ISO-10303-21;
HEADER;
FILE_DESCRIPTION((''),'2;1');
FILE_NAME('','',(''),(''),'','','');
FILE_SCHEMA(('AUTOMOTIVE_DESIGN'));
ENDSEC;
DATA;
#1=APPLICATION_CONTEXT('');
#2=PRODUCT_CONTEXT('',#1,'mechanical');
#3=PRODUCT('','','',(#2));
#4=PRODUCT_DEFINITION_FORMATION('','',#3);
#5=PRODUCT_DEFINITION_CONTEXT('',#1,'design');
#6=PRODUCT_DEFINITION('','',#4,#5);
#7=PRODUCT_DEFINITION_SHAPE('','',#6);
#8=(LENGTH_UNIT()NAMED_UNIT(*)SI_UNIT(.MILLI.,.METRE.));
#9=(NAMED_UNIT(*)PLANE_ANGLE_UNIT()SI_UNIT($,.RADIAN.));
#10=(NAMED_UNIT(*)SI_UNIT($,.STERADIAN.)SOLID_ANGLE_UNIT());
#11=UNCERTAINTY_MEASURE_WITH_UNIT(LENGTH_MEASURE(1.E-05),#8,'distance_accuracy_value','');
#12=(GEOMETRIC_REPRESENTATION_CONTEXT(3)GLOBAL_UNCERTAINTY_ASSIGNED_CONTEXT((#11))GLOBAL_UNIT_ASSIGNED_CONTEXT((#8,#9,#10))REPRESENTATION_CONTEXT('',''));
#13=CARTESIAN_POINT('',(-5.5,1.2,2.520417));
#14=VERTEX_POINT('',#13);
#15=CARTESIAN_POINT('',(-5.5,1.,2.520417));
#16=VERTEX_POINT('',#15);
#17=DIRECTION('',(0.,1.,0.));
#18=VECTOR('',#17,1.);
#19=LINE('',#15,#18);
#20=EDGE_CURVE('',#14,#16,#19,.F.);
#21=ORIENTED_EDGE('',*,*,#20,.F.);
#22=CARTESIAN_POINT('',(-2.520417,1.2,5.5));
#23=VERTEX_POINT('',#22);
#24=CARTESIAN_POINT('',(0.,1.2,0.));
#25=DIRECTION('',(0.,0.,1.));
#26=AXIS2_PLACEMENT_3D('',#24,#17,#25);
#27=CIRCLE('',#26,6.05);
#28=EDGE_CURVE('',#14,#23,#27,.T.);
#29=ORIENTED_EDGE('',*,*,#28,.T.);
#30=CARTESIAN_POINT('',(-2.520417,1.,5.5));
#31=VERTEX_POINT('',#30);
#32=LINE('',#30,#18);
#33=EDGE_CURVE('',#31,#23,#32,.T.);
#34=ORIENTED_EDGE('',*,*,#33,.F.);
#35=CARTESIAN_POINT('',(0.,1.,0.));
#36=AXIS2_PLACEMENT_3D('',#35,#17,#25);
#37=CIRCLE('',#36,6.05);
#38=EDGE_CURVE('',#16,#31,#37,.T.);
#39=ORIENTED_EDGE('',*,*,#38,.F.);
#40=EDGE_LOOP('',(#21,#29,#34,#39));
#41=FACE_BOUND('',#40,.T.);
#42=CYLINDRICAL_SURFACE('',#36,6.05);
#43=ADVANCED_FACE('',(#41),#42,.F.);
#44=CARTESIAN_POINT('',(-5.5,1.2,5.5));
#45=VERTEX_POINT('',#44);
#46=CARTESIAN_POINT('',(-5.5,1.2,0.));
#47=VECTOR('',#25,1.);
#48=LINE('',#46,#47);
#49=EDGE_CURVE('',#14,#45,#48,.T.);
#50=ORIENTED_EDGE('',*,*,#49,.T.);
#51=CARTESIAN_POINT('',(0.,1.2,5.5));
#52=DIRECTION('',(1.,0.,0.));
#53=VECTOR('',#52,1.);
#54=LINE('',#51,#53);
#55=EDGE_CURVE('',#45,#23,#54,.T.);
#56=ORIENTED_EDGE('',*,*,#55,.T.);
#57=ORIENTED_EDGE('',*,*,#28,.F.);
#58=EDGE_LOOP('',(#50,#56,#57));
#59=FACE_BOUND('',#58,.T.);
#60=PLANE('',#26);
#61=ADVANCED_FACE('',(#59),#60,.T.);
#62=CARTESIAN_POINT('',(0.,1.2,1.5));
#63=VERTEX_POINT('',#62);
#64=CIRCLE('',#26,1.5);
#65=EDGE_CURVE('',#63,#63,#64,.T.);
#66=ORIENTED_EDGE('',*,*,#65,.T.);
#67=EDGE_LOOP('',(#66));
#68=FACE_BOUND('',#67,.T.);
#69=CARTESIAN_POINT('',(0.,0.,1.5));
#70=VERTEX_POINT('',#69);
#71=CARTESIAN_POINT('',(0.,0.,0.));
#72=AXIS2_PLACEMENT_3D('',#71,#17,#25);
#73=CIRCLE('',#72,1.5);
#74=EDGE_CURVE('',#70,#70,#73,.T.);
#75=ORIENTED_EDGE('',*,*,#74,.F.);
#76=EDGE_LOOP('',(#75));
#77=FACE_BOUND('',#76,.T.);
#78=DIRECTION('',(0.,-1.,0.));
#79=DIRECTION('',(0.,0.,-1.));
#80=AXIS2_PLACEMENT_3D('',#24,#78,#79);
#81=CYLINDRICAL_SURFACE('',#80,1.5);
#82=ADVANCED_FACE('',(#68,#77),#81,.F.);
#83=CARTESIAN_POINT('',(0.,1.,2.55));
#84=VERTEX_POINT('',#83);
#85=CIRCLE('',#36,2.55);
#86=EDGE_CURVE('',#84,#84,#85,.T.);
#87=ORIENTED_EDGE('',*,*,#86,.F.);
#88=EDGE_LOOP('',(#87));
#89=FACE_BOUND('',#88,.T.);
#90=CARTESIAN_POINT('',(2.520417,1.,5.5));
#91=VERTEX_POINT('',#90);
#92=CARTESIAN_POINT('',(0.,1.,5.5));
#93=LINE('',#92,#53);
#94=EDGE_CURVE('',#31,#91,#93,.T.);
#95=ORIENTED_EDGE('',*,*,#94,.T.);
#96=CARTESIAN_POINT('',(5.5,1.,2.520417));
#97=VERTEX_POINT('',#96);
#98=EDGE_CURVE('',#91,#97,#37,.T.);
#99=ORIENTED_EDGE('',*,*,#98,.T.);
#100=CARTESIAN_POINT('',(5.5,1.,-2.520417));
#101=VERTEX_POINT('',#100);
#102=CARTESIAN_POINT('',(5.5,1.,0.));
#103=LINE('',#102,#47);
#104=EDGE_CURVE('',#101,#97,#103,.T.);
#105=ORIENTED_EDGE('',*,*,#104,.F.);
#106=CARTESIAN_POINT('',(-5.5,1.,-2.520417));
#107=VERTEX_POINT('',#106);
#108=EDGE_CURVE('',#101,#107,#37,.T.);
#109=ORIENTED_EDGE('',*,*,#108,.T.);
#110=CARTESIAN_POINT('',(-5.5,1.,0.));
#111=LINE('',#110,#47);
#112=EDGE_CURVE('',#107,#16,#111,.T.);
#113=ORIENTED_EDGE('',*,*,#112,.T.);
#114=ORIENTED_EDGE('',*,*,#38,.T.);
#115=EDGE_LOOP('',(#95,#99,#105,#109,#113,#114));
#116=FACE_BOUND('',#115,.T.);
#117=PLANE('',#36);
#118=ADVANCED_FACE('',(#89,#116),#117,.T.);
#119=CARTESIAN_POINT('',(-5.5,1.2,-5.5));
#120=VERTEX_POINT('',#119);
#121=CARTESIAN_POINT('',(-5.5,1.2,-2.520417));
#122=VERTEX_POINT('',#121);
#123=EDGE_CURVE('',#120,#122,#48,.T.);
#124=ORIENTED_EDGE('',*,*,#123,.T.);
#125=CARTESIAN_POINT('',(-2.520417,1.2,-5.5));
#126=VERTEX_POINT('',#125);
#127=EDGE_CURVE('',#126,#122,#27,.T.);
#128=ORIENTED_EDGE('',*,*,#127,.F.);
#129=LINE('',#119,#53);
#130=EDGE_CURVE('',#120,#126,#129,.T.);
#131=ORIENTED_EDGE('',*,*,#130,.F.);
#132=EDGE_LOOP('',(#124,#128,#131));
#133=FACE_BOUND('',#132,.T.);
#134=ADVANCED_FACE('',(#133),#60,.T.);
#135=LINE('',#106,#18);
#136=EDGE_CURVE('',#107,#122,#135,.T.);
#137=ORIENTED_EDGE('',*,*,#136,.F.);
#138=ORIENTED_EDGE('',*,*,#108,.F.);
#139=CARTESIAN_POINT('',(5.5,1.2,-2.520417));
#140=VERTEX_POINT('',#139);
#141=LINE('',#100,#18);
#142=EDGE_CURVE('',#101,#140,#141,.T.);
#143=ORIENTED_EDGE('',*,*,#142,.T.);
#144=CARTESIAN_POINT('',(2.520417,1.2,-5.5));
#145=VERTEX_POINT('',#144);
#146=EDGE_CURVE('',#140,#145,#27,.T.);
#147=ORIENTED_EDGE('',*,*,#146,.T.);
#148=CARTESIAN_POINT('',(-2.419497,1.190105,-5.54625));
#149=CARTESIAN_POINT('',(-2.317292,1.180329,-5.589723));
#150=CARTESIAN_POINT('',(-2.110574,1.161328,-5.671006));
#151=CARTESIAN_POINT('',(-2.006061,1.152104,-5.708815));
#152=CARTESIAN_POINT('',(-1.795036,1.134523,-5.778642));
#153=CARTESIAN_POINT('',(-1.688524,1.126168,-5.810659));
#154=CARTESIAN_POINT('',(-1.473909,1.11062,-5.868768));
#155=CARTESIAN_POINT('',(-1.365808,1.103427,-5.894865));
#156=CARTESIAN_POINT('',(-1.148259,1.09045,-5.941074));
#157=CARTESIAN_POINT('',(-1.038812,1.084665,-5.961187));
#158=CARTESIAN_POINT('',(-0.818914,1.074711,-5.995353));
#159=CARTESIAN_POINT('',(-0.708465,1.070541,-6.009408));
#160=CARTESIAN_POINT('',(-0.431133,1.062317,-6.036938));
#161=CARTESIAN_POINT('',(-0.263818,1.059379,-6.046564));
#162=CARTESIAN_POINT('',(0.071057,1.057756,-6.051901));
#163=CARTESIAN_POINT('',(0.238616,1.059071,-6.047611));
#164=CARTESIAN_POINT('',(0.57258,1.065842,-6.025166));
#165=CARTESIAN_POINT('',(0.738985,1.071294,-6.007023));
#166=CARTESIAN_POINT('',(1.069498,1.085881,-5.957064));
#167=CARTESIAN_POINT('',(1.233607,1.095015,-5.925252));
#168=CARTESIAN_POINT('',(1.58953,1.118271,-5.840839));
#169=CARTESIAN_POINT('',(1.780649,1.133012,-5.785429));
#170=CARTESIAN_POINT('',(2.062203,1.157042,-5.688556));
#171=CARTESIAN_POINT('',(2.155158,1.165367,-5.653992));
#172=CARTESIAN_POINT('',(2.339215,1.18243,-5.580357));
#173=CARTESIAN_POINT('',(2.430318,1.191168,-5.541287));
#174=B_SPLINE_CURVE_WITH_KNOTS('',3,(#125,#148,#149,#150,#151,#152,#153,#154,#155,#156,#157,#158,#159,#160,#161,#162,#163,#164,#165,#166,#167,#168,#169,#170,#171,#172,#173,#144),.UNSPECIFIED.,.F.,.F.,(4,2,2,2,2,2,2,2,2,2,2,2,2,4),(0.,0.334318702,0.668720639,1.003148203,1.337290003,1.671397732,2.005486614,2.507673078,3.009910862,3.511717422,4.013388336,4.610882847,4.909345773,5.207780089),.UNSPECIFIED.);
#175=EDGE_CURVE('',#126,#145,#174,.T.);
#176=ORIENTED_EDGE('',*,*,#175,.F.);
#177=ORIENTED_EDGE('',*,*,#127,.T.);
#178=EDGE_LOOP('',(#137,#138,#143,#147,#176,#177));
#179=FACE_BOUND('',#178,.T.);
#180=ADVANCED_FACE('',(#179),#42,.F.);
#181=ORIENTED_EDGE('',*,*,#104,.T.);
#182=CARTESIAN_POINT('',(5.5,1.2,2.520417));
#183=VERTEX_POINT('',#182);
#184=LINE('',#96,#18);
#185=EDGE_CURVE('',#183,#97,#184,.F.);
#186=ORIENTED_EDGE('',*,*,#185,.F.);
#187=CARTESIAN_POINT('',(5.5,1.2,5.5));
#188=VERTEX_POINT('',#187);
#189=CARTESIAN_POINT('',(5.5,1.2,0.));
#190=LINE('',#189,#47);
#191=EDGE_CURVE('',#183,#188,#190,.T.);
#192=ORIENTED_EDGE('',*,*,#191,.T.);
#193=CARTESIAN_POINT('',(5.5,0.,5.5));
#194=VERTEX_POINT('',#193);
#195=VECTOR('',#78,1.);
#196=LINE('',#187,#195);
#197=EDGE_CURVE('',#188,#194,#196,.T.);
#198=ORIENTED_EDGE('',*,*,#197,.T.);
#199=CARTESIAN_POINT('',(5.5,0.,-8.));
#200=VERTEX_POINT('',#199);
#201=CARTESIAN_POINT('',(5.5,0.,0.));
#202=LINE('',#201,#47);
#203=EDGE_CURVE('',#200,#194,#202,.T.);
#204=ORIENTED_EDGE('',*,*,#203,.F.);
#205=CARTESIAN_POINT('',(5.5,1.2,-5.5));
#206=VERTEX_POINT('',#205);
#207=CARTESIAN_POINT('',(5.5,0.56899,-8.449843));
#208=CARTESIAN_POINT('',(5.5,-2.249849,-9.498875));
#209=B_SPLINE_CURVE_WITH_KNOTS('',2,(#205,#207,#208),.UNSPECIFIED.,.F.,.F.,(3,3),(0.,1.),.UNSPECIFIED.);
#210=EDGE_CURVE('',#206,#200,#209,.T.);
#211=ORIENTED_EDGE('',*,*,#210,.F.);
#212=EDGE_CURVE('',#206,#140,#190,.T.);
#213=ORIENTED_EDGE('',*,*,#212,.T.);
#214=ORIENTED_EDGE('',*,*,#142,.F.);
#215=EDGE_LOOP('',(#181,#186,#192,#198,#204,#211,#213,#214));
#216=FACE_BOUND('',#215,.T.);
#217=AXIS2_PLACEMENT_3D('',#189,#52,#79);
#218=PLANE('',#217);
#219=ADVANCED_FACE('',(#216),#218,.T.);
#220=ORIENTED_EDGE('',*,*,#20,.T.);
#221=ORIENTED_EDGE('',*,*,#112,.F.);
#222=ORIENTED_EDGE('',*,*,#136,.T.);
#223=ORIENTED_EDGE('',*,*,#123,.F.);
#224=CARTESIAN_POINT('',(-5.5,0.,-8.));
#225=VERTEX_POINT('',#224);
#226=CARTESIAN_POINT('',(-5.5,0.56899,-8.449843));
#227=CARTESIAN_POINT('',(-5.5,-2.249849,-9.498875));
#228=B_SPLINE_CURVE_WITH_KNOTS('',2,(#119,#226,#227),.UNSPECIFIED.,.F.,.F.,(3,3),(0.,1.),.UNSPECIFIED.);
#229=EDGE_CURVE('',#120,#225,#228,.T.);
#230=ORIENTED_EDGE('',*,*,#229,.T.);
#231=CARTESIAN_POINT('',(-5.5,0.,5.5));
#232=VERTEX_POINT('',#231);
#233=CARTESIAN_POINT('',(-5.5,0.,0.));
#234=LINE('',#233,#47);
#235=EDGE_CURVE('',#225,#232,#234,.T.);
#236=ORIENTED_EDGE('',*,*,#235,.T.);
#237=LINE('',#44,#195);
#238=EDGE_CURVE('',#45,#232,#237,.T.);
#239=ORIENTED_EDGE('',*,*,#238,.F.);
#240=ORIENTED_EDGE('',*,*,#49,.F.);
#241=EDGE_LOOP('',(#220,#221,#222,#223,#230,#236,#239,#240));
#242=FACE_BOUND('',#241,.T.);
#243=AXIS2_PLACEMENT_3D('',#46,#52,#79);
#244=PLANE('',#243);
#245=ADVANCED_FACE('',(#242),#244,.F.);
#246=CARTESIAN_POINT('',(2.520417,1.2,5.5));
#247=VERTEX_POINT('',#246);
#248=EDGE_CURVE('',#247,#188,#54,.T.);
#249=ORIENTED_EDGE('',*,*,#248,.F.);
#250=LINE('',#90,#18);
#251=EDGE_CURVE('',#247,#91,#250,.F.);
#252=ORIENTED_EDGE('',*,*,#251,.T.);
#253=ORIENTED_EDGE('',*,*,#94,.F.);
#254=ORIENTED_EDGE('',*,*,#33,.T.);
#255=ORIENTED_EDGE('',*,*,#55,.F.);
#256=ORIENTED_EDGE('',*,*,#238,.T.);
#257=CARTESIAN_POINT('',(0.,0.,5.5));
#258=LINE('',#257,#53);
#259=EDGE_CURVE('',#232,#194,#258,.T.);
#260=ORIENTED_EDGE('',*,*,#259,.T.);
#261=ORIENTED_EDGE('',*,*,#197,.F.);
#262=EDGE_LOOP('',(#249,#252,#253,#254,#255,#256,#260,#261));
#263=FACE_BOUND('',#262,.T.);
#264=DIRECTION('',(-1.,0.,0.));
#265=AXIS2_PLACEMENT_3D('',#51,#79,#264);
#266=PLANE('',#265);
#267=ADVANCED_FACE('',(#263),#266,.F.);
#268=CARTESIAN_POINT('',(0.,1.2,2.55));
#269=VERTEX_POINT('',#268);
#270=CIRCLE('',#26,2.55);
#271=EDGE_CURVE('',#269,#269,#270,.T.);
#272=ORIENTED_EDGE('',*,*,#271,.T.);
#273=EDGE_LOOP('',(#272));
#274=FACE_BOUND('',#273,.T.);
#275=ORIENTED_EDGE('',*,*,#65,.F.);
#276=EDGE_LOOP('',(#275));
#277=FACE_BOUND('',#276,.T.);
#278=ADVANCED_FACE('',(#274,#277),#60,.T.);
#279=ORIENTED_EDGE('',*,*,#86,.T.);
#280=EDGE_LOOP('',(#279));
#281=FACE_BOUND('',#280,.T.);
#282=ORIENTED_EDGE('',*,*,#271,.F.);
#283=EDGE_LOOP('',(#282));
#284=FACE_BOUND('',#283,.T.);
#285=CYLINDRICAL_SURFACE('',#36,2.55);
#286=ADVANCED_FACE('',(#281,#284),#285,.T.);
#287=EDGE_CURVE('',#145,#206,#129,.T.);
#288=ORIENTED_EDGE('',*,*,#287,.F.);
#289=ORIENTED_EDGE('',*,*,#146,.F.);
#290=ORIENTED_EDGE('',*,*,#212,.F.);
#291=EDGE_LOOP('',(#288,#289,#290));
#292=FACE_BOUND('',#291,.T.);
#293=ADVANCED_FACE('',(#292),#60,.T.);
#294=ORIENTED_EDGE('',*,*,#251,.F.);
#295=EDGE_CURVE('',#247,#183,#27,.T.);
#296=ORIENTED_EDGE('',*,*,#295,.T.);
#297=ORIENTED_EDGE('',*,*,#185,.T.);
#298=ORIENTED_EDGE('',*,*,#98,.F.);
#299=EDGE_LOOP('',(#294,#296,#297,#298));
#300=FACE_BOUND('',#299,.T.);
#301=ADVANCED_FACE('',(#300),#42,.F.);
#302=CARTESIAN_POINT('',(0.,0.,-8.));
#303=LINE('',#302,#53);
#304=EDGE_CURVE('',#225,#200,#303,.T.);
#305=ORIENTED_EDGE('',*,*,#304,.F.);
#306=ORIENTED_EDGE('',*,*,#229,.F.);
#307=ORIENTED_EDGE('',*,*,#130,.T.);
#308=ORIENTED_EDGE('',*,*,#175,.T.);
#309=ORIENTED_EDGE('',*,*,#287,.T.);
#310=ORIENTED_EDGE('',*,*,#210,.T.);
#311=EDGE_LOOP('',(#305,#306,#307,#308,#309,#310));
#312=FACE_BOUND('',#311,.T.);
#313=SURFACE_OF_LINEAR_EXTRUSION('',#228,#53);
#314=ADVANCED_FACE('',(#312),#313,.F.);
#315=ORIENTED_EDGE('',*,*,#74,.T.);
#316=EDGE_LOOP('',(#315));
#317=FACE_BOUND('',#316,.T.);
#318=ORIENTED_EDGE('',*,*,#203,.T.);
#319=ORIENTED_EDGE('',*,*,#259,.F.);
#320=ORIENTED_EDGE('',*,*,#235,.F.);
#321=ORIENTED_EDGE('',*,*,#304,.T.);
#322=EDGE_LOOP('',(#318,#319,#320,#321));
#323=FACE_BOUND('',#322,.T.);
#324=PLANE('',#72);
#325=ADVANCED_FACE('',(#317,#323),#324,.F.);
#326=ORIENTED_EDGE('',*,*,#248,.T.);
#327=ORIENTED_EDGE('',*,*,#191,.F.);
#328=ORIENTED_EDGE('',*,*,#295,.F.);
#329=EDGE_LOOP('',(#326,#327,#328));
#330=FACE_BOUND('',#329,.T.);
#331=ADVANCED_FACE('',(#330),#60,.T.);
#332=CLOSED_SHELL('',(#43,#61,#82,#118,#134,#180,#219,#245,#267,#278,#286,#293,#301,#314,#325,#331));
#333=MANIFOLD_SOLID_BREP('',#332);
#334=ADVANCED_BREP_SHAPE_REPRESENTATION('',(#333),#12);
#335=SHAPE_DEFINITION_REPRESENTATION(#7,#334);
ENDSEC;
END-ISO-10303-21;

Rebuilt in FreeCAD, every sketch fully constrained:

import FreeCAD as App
import Part
import Sketcher
from FreeCAD import Vector
Q = App.Units.Quantity

doc = App.newDocument("Part")
body = doc.addObject("PartDesign::Body", "Body")

# Sketch on XZ plane
sketch1 = doc.addObject("Sketcher::SketchObject", "Sketch")
body.addObject(sketch1)
sketch1.AttachmentSupport = (doc.XZ_Plane, [""])
sketch1.MapMode = "FlatFace"
sketch1.addGeometry([
    Part.LineSegment(Vector(5.5, -5.5, 0), Vector(-5.5, -5.5, 0)),  # 0
    Part.LineSegment(Vector(-5.5, -5.5, 0), Vector(-5.5, 5.5, 0)),  # 1
    Part.LineSegment(Vector(-5.5, 5.5, 0), Vector(5.5, 5.5, 0)),  # 2
    Part.LineSegment(Vector(5.5, 5.5, 0), Vector(5.5, -5.5, 0)),  # 3
    Part.Circle(Vector(0, 0, 0), Vector(0, 0, 1), 1.5),  # 4
], False)
sketch1.addConstraint([
    Sketcher.Constraint("Coincident", 0, 2, 1, 1),
    Sketcher.Constraint("Coincident", 1, 2, 2, 1),
    Sketcher.Constraint("Coincident", 2, 2, 3, 1),
    Sketcher.Constraint("Coincident", 3, 2, 0, 1),
    Sketcher.Constraint("Horizontal", 0),
    Sketcher.Constraint("Vertical", 1),
    Sketcher.Constraint("Horizontal", 2),
    Sketcher.Constraint("Vertical", 3),
    Sketcher.Constraint("Coincident", 4, 3, -1, 1),
    Sketcher.Constraint("Symmetric", 0, 2, 2, 2, -1, 1),
    Sketcher.Constraint("Equal", 2, 1),
    Sketcher.Constraint("Diameter", 4, Q("3 mm")),
    Sketcher.Constraint("DistanceX", 0, 2, 0, 1, Q("11 mm")),
])
pad1 = doc.addObject("PartDesign::Pad", "Pad")
body.addObject(pad1)
pad1.Profile = sketch1
pad1.Length = 1.2
pad1.Reversed = True

# Sketch on XZ plane
sketch2 = doc.addObject("Sketcher::SketchObject", "Sketch001")
body.addObject(sketch2)
sketch2.AttachmentSupport = (doc.XZ_Plane, [""])
sketch2.MapMode = "FlatFace"
sketch2.addGeometry([
    Part.LineSegment(Vector(-5.5, -8, 0), Vector(-5.5, -5.5, 0)),
    Part.LineSegment(Vector(-5.5, -5.5, 0), Vector(5.5, -5.5, 0)),
    Part.LineSegment(Vector(5.5, -5.5, 0), Vector(5.5, -8, 0)),
    Part.LineSegment(Vector(5.5, -8, 0), Vector(-5.5, -8, 0)),
], False)
sketch2.addConstraint([
    Sketcher.Constraint("Coincident", 0, 2, 1, 1),
    Sketcher.Constraint("Coincident", 1, 2, 2, 1),
    Sketcher.Constraint("Coincident", 2, 2, 3, 1),
    Sketcher.Constraint("Coincident", 3, 2, 0, 1),
    Sketcher.Constraint("Vertical", 0),
    Sketcher.Constraint("Horizontal", 1),
    Sketcher.Constraint("Vertical", 2),
    Sketcher.Constraint("Horizontal", 3),
    Sketcher.Constraint("DistanceX", 1, 1, 1, 2, Q("11 mm")),
    Sketcher.Constraint("DistanceY", 0, 1, 0, 2, Q("2.5 mm")),
    Sketcher.Constraint("DistanceY", 2, 2, -1, 1, Q("8 mm")),
    Sketcher.Constraint("DistanceX", 0, 2, -1, 1, Q("5.5 mm")),
])
pad2 = doc.addObject("PartDesign::Pad", "Pad001")
body.addObject(pad2)
pad2.Profile = sketch2
pad2.Length = 1.2
pad2.Reversed = True

# Sketch on YZ plane
sketch3 = doc.addObject("Sketcher::SketchObject", "Sketch002")
body.addObject(sketch3)
sketch3.AttachmentSupport = (doc.YZ_Plane, [""])
sketch3.MapMode = "FlatFace"
sketch3.AttachmentOffset = App.Placement(Vector(0, 0, 5.5), App.Rotation())
sketch3.addGeometry([
    Part.LineSegment(Vector(1.2, -8, 0), Vector(1.2, -5.5, 0)),
    Part.BSplineCurve([Vector(1.2, -5.5, 0), Vector(0.880481, -6.993685, 0), Vector(0, -8, 0)], [3, 3], [0, 0.506360877], False, 2, [1, 1, 1], False),
    Part.LineSegment(Vector(0, -8, 0), Vector(1.2, -8, 0)),
], False)
sketch3.addConstraint([
    Sketcher.Constraint("Block", 1),
    Sketcher.Constraint("Coincident", 0, 2, 1, 1),
    Sketcher.Constraint("Coincident", 1, 2, 2, 1),
    Sketcher.Constraint("Coincident", 2, 2, 0, 1),
    Sketcher.Constraint("Vertical", 0),
    Sketcher.Constraint("Horizontal", 2),
])
pocket1 = doc.addObject("PartDesign::Pocket", "Pocket")
body.addObject(pocket1)
pocket1.Profile = sketch3
pocket1.Type = "ThroughAll"

# Sketch on XZ plane
sketch4 = doc.addObject("Sketcher::SketchObject", "Sketch003")
body.addObject(sketch4)
sketch4.AttachmentSupport = (doc.XZ_Plane, [""])
sketch4.MapMode = "FlatFace"
sketch4.AttachmentOffset = App.Placement(Vector(0, 0, -1.2), App.Rotation())
sketch4.addGeometry([
    Part.Circle(Vector(0, 0, 0), Vector(0, 0, 1), 6),
    Part.Circle(Vector(0, 0, 0), Vector(0, 0, 1), 2.5),
], False)
sketch4.addConstraint([
    Sketcher.Constraint("Coincident", 0, 3, -1, 1),
    Sketcher.Constraint("Coincident", 1, 3, -1, 1),
    Sketcher.Constraint("Diameter", 0, Q("12.1 mm")),
    Sketcher.Constraint("Diameter", 1, Q("5.1 mm")),
])
pocket2 = doc.addObject("PartDesign::Pocket", "Pocket001")
body.addObject(pocket2)
pocket2.Profile = sketch4
pocket2.Length = 0.2
pocket2.Reversed = True

doc.recompute()
